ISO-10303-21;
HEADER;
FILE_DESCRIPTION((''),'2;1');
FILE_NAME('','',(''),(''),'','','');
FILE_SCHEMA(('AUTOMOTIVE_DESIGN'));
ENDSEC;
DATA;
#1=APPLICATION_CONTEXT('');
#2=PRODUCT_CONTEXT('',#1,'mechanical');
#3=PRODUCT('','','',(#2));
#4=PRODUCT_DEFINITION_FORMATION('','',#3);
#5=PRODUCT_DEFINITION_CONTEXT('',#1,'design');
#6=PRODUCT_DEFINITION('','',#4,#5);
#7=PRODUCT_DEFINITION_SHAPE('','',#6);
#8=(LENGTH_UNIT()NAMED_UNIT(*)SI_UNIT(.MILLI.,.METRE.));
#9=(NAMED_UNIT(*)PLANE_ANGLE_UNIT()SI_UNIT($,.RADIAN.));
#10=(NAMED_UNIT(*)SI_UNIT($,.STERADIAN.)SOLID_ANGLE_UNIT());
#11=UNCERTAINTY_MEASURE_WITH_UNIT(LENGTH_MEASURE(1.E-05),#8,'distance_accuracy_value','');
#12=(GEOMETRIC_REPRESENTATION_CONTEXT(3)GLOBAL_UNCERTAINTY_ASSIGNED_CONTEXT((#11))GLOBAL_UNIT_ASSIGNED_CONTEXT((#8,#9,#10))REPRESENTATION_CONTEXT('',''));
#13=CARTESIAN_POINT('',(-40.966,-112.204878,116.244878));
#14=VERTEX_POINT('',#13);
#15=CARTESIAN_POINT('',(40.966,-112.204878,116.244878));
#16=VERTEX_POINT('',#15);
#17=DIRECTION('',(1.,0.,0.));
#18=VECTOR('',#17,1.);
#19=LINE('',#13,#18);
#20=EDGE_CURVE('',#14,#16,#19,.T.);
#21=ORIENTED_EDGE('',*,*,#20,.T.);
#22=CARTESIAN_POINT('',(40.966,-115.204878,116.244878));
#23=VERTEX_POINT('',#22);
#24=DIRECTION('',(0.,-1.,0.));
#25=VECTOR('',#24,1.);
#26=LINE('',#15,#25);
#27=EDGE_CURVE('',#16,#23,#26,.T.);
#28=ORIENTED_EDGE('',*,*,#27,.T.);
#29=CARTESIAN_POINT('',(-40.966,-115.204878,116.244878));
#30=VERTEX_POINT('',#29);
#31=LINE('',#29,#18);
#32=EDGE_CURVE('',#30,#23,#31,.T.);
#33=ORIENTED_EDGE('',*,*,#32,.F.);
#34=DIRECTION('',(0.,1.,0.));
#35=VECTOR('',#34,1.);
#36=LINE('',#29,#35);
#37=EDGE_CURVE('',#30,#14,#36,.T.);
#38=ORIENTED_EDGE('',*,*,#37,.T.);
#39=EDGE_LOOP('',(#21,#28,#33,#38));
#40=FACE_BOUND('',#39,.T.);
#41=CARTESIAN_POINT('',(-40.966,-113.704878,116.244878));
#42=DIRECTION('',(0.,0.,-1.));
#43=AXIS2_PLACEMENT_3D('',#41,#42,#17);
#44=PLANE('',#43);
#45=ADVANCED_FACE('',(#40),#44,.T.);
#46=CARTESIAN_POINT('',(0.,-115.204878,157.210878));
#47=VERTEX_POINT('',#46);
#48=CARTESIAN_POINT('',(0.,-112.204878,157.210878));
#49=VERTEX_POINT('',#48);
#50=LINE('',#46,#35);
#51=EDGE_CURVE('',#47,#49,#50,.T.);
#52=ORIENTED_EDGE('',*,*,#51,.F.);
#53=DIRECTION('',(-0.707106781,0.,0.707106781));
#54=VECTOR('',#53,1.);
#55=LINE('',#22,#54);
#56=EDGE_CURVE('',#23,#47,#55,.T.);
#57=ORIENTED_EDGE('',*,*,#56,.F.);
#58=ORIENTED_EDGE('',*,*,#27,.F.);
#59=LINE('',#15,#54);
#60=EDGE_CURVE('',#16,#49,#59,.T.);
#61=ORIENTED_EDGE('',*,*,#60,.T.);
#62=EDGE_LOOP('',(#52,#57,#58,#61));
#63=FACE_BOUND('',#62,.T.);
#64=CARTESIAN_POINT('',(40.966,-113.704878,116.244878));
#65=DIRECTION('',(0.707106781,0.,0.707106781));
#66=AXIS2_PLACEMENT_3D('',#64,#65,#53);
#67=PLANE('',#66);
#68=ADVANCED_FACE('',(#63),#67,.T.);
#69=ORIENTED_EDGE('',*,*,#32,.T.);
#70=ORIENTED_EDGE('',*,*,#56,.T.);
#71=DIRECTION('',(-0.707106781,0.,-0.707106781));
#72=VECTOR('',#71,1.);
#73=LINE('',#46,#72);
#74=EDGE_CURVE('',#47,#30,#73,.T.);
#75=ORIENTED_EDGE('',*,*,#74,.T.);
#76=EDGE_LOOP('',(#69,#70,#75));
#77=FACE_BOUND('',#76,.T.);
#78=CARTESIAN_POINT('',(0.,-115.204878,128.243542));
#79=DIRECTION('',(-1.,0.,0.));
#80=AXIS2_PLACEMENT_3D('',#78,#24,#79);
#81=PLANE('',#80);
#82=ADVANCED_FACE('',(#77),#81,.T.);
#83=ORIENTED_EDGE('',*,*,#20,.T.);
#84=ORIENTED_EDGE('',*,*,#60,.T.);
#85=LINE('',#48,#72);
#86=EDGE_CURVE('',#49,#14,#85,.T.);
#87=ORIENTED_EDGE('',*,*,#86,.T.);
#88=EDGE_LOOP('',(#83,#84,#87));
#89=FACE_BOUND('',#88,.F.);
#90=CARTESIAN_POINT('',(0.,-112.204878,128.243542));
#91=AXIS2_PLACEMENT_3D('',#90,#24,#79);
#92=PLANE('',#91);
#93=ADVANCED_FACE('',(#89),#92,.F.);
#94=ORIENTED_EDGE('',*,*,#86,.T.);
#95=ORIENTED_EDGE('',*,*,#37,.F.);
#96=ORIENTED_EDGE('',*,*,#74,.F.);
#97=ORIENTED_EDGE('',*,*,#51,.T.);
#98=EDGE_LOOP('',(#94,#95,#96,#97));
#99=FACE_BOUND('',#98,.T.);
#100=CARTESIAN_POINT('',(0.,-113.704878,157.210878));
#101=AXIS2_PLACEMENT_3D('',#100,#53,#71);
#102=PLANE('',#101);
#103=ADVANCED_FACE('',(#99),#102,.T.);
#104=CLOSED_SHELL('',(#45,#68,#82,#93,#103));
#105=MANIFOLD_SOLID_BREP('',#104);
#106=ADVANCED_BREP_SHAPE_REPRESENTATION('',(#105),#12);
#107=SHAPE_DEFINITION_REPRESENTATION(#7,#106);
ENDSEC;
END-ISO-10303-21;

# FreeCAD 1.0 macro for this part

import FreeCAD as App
import Part
import Sketcher
Q = App.Units.Quantity

doc = App.newDocument("Part")
params = doc.addObject("Spreadsheet::Sheet", "Params")
for row, (alias, value) in enumerate([
    ("pad1_length", "3 mm"),
], start=1):
    params.set(f"A{row}", alias)
    params.set(f"B{row}", "=" + value)
    params.setAlias(f"B{row}", alias)

body = doc.addObject("PartDesign::Body", "Body")

sketch1 = body.newObject("Sketcher::SketchObject", "Sketch")
sketch1.AttachmentSupport = (doc.getObject("XZ_Plane"), [""])
sketch1.MapMode = "FlatFace"
sketch1.AttachmentOffset = App.Placement(App.Vector(0, 0, 113.704878), App.Rotation())
sketch1.addGeometry([
    Part.LineSegment(App.Vector(-41, 116, 0), App.Vector(41, 116, 0)),
    Part.LineSegment(App.Vector(41, 116, 0), App.Vector(0, 157, 0)),
    Part.LineSegment(App.Vector(0, 157, 0), App.Vector(-41, 116, 0)),
], False)
sketch1.addConstraint([
    Sketcher.Constraint("Coincident", 0, 2, 1, 1),
    Sketcher.Constraint("Coincident", 1, 2, 2, 1),
    Sketcher.Constraint("Coincident", 2, 2, 0, 1),
    Sketcher.Constraint("Horizontal", 0),
    Sketcher.Constraint("PointOnObject", 1, 2, -2),
    Sketcher.Constraint("Perpendicular", 1, 2),
    Sketcher.Constraint("Equal", 1, 2),
    Sketcher.Constraint("DistanceX", 0, 1, 0, 2, Q("81.932 mm")),
    Sketcher.Constraint("DistanceY", -1, 1, 0, 2, Q("116.244878 mm")),
])
pad1 = body.newObject("PartDesign::Pad", "Pad")
pad1.Profile = sketch1
pad1.setExpression("Length", "Params.pad1_length")
pad1.Midplane = True

doc.recompute()
